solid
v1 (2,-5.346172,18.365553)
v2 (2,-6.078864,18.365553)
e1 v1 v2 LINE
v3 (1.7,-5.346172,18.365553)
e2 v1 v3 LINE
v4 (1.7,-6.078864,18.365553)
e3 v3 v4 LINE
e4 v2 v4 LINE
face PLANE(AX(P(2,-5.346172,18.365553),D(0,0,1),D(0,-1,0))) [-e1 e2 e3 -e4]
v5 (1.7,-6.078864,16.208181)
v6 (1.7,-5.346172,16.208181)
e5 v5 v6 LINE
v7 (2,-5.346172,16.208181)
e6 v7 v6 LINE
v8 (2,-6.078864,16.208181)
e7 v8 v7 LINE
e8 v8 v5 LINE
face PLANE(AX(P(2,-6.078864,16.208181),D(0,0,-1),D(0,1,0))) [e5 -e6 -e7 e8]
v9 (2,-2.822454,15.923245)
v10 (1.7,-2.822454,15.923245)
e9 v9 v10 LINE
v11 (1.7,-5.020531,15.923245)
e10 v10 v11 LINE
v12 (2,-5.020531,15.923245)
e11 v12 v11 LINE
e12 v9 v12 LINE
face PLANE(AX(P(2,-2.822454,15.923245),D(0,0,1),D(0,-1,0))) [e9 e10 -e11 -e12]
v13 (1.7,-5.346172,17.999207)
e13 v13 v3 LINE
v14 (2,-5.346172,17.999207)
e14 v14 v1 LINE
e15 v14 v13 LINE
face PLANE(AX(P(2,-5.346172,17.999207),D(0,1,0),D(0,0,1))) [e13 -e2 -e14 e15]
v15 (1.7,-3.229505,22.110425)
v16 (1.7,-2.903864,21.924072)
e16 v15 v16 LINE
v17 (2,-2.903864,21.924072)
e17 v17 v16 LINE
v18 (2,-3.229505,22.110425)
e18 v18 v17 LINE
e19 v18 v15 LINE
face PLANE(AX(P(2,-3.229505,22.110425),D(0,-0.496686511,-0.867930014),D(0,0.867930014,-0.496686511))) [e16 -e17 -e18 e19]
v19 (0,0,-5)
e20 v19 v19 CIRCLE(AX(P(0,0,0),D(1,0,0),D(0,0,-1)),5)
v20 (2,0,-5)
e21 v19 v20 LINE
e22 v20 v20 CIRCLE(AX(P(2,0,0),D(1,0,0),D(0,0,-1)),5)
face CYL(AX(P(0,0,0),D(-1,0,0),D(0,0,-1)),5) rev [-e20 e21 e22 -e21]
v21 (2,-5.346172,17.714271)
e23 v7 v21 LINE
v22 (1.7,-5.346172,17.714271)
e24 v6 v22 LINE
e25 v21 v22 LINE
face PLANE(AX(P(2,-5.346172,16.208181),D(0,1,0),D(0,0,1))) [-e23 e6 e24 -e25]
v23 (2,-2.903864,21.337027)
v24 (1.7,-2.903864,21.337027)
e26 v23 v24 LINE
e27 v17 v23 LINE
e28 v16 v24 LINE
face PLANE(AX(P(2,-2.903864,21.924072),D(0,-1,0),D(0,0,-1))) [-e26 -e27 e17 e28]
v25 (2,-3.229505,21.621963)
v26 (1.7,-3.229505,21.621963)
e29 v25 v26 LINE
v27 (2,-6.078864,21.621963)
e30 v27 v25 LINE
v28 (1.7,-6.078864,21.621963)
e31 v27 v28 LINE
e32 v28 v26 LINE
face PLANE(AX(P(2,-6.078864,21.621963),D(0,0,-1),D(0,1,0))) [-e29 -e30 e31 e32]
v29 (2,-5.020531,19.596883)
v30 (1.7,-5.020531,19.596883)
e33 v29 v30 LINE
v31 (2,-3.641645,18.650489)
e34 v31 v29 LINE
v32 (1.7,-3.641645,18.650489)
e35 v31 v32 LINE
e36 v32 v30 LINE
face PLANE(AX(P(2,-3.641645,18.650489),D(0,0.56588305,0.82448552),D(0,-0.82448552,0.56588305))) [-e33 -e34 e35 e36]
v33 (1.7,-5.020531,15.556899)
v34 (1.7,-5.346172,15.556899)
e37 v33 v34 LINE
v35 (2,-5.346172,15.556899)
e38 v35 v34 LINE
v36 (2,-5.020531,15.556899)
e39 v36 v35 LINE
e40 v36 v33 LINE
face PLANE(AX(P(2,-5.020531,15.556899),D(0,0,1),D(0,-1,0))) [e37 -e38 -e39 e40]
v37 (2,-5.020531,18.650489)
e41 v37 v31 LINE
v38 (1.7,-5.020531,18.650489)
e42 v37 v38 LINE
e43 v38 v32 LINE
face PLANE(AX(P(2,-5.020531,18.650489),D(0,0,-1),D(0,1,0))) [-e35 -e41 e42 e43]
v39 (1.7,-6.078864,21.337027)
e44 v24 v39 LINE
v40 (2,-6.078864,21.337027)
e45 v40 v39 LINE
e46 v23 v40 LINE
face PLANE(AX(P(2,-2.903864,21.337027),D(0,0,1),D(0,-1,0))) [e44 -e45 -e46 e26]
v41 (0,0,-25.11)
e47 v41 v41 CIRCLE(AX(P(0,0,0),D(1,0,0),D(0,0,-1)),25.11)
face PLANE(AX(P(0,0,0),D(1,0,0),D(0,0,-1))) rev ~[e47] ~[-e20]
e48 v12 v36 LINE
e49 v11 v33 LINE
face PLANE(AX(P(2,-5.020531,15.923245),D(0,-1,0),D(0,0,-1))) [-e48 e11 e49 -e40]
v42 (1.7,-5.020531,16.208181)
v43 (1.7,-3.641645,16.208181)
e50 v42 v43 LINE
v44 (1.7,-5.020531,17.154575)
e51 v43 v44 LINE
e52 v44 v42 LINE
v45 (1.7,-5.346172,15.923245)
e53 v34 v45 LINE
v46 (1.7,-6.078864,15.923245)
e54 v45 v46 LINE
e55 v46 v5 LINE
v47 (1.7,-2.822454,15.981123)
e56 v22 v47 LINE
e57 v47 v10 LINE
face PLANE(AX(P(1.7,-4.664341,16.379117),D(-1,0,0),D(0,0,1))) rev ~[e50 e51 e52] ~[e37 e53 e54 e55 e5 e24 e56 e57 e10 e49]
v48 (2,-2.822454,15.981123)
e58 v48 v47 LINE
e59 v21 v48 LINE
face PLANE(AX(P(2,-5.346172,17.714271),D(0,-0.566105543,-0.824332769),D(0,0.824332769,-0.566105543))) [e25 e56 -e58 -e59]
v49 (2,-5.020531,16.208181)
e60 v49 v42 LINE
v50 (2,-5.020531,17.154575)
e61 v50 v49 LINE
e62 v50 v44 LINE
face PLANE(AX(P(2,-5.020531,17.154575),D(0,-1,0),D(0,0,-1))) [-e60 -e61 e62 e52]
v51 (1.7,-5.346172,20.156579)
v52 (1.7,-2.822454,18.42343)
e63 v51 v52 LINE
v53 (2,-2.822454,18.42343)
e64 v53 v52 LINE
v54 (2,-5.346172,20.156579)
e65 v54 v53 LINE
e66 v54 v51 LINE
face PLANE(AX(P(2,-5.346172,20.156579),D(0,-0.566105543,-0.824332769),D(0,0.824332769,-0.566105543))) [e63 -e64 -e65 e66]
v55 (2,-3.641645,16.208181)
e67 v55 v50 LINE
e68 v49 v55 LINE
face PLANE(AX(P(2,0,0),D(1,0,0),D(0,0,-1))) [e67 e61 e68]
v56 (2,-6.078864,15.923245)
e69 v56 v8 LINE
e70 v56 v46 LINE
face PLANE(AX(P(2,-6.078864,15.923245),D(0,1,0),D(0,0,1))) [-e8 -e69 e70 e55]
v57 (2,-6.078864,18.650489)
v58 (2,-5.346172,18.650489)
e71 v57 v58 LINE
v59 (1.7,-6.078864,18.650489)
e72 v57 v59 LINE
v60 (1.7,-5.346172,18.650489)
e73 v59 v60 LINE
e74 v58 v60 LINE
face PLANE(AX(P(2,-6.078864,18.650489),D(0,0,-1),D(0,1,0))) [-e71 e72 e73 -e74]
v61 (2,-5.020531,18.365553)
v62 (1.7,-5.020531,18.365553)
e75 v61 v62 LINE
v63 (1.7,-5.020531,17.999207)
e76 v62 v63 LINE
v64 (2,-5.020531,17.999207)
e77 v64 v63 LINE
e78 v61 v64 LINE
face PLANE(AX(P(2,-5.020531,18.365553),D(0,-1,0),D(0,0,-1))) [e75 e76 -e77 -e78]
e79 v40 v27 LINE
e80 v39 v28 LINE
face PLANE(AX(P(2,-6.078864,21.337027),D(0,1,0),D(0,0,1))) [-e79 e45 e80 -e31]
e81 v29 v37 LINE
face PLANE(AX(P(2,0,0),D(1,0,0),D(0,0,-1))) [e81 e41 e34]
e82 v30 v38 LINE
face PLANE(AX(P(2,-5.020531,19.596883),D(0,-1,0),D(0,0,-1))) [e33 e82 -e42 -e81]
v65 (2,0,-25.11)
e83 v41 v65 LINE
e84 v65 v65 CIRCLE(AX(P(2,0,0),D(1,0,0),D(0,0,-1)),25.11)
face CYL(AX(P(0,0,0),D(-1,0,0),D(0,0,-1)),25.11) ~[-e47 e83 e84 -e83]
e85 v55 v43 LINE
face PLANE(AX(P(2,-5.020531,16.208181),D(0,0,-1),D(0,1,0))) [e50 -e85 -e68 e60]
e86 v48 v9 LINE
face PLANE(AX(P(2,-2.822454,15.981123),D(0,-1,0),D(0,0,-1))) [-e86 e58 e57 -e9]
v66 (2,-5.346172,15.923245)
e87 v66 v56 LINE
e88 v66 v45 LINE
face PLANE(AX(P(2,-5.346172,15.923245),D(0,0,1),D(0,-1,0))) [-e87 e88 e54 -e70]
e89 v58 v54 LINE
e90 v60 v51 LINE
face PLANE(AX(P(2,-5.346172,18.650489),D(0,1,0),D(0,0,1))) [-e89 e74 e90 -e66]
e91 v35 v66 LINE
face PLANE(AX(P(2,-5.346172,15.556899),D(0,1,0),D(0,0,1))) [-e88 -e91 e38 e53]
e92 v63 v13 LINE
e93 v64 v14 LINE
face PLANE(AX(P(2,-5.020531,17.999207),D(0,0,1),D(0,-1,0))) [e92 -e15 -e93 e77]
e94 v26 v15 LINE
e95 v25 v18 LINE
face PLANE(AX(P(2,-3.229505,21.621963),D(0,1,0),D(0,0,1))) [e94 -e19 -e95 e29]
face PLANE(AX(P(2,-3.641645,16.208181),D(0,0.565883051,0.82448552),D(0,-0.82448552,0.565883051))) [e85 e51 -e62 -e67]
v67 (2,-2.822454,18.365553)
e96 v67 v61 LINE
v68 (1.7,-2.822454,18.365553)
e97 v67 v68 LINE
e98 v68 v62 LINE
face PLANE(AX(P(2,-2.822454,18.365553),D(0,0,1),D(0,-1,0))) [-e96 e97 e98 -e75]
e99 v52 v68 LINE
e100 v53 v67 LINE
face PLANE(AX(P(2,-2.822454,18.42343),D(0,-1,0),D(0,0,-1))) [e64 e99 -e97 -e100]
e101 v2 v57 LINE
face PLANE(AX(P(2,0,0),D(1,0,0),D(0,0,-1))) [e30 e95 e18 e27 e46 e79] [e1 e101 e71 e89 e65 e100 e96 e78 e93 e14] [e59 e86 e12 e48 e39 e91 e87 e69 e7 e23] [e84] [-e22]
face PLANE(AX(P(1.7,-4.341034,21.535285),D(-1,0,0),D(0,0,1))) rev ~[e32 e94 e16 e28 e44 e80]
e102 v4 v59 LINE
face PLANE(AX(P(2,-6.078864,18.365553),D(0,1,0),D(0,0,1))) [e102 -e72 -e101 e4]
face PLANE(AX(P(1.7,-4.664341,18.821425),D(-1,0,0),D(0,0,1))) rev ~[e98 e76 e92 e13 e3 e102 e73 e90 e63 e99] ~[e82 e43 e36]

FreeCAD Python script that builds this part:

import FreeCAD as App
import Part
import Sketcher

V = App.Vector

doc = App.newDocument("Part")
body = doc.addObject("PartDesign::Body", "Body")

# Sketch on YZ plane
sketch1 = body.newObject("Sketcher::SketchObject", "Sketch")
sketch1.AttachmentSupport = (doc.getObject("YZ_Plane"), [""])
sketch1.MapMode = "FlatFace"
sketch1.addGeometry(Part.Circle(V(0, 0, 0), V(0, 0, 1), 25), False)
sketch1.addGeometry(Part.Circle(V(0, 0, 0), V(0, 0, 1), 5), False)
sketch1.addConstraint(Sketcher.Constraint("Coincident", 0, 3, -1, 1))
sketch1.addConstraint(Sketcher.Constraint("Coincident", 1, 3, -1, 1))
sketch1.addConstraint(Sketcher.Constraint("Diameter", 1, 10.0))
sketch1.addConstraint(Sketcher.Constraint("Diameter", 0, 50.22))
pad1 = body.newObject("PartDesign::Pad", "Pad")
pad1.Profile = sketch1
pad1.Length = 2

# Sketch on YZ plane
sketch2 = body.newObject("Sketcher::SketchObject", "Sketch001")
sketch2.AttachmentSupport = (doc.getObject("YZ_Plane"), [""])
sketch2.MapMode = "FlatFace"
sketch2.AttachmentOffset = App.Placement(V(0, 0, 2), App.Rotation())
sketch2.addGeometry(Part.LineSegment(V(-2.9, 21.34, 0), V(-2.9, 21.92, 0)), False)
sketch2.addGeometry(Part.LineSegment(V(-2.9, 21.92, 0), V(-3.23, 22.11, 0)), False)
sketch2.addGeometry(Part.LineSegment(V(-3.23, 22.11, 0), V(-3.23, 21.62, 0)), False)
sketch2.addGeometry(Part.LineSegment(V(-3.23, 21.62, 0), V(-6.08, 21.62, 0)), False)
sketch2.addGeometry(Part.LineSegment(V(-6.08, 21.62, 0), V(-6.08, 21.34, 0)), False)
sketch2.addGeometry(Part.LineSegment(V(-6.08, 21.34, 0), V(-2.9, 21.34, 0)), False)
sketch2.addGeometry(Part.LineSegment(V(-2.82, 18.37, 0), V(-2.82, 18.42, 0)), False)
sketch2.addGeometry(Part.LineSegment(V(-2.82, 18.42, 0), V(-5.35, 20.16, 0)), False)
sketch2.addGeometry(Part.LineSegment(V(-5.35, 20.16, 0), V(-5.35, 18.65, 0)), False)
sketch2.addGeometry(Part.LineSegment(V(-5.35, 18.65, 0), V(-6.08, 18.65, 0)), False)
sketch2.addGeometry(Part.LineSegment(V(-6.08, 18.65, 0), V(-6.08, 18.37, 0)), False)
sketch2.addGeometry(Part.LineSegment(V(-6.08, 18.37, 0), V(-5.35, 18.37, 0)), False)
sketch2.addGeometry(Part.LineSegment(V(-5.35, 18.37, 0), V(-5.35, 18, 0)), False)
sketch2.addGeometry(Part.LineSegment(V(-5.35, 18, 0), V(-5.02, 18, 0)), False)
sketch2.addGeometry(Part.LineSegment(V(-5.02, 18, 0), V(-5.02, 18.37, 0)), False)
sketch2.addGeometry(Part.LineSegment(V(-5.02, 18.37, 0), V(-2.82, 18.37, 0)), False)
sketch2.addGeometry(Part.LineSegment(V(-5.02, 18.65, 0), V(-5.02, 19.6, 0)), False)
sketch2.addGeometry(Part.LineSegment(V(-5.02, 19.6, 0), V(-3.64, 18.65, 0)), False)
sketch2.addGeometry(Part.LineSegment(V(-3.64, 18.65, 0), V(-5.02, 18.65, 0)), False)
sketch2.addGeometry(Part.LineSegment(V(-2.82, 15.92, 0), V(-2.82, 15.98, 0)), False)
sketch2.addGeometry(Part.LineSegment(V(-2.82, 15.98, 0), V(-5.35, 17.71, 0)), False)
sketch2.addGeometry(Part.LineSegment(V(-5.35, 17.71, 0), V(-5.35, 16.21, 0)), False)
sketch2.addGeometry(Part.LineSegment(V(-5.35, 16.21, 0), V(-6.08, 16.21, 0)), False)
sketch2.addGeometry(Part.LineSegment(V(-6.08, 16.21, 0), V(-6.08, 15.92, 0)), False)
sketch2.addGeometry(Part.LineSegment(V(-6.08, 15.92, 0), V(-5.35, 15.92, 0)), False)
sketch2.addGeometry(Part.LineSegment(V(-5.35, 15.92, 0), V(-5.35, 15.56, 0)), False)
sketch2.addGeometry(Part.LineSegment(V(-5.35, 15.56, 0), V(-5.02, 15.56, 0)), False)
sketch2.addGeometry(Part.LineSegment(V(-5.02, 15.56, 0), V(-5.02, 15.92, 0)), False)
sketch2.addGeometry(Part.LineSegment(V(-5.02, 15.92, 0), V(-2.82, 15.92, 0)), False)
sketch2.addGeometry(Part.LineSegment(V(-5.02, 16.21, 0), V(-5.02, 17.15, 0)), False)
sketch2.addGeometry(Part.LineSegment(V(-5.02, 17.15, 0), V(-3.64, 16.21, 0)), False)
sketch2.addGeometry(Part.LineSegment(V(-3.64, 16.21, 0), V(-5.02, 16.21, 0)), False)
sketch2.addConstraint(Sketcher.Constraint("Coincident", 0, 2, 1, 1))
sketch2.addConstraint(Sketcher.Constraint("Coincident", 1, 2, 2, 1))
sketch2.addConstraint(Sketcher.Constraint("Coincident", 2, 2, 3, 1))
sketch2.addConstraint(Sketcher.Constraint("Coincident", 3, 2, 4, 1))
sketch2.addConstraint(Sketcher.Constraint("Coincident", 4, 2, 5, 1))
sketch2.addConstraint(Sketcher.Constraint("Coincident", 5, 2, 0, 1))
sketch2.addConstraint(Sketcher.Constraint("Coincident", 6, 2, 7, 1))
sketch2.addConstraint(Sketcher.Constraint("Coincident", 7, 2, 8, 1))
sketch2.addConstraint(Sketcher.Constraint("Coincident", 8, 2, 9, 1))
sketch2.addConstraint(Sketcher.Constraint("Coincident", 9, 2, 10, 1))
sketch2.addConstraint(Sketcher.Constraint("Coincident", 10, 2, 11, 1))
sketch2.addConstraint(Sketcher.Constraint("Coincident", 11, 2, 12, 1))
sketch2.addConstraint(Sketcher.Constraint("Coincident", 12, 2, 13, 1))
sketch2.addConstraint(Sketcher.Constraint("Coincident", 13, 2, 14, 1))
sketch2.addConstraint(Sketcher.Constraint("Coincident", 14, 2, 15, 1))
sketch2.addConstraint(Sketcher.Constraint("Coincident", 15, 2, 6, 1))
sketch2.addConstraint(Sketcher.Constraint("Coincident", 16, 2, 17, 1))
sketch2.addConstraint(Sketcher.Constraint("Coincident", 17, 2, 18, 1))
sketch2.addConstraint(Sketcher.Constraint("Coincident", 18, 2, 16, 1))
sketch2.addConstraint(Sketcher.Constraint("Coincident", 19, 2, 20, 1))
sketch2.addConstraint(Sketcher.Constraint("Coincident", 20, 2, 21, 1))
sketch2.addConstraint(Sketcher.Constraint("Coincident", 21, 2, 22, 1))
sketch2.addConstraint(Sketcher.Constraint("Coincident", 22, 2, 23, 1))
sketch2.addConstraint(Sketcher.Constraint("Coincident", 23, 2, 24, 1))
sketch2.addConstraint(Sketcher.Constraint("Coincident", 24, 2, 25, 1))
sketch2.addConstraint(Sketcher.Constraint("Coincident", 25, 2, 26, 1))
sketch2.addConstraint(Sketcher.Constraint("Coincident", 26, 2, 27, 1))
sketch2.addConstraint(Sketcher.Constraint("Coincident", 27, 2, 28, 1))
sketch2.addConstraint(Sketcher.Constraint("Coincident", 28, 2, 19, 1))
sketch2.addConstraint(Sketcher.Constraint("Coincident", 29, 2, 30, 1))
sketch2.addConstraint(Sketcher.Constraint("Coincident", 30, 2, 31, 1))
sketch2.addConstraint(Sketcher.Constraint("Coincident", 31, 2, 29, 1))
sketch2.addConstraint(Sketcher.Constraint("Vertical", 0))
sketch2.addConstraint(Sketcher.Constraint("Vertical", 2))
sketch2.addConstraint(Sketcher.Constraint("Horizontal", 3))
sketch2.addConstraint(Sketcher.Constraint("Vertical", 4))
sketch2.addConstraint(Sketcher.Constraint("Horizontal", 5))
sketch2.addConstraint(Sketcher.Constraint("Vertical", 6))
sketch2.addConstraint(Sketcher.Constraint("Vertical", 8))
sketch2.addConstraint(Sketcher.Constraint("Horizontal", 9))
sketch2.addConstraint(Sketcher.Constraint("Vertical", 10))
sketch2.addConstraint(Sketcher.Constraint("Horizontal", 11))
sketch2.addConstraint(Sketcher.Constraint("Vertical", 12))
sketch2.addConstraint(Sketcher.Constraint("Horizontal", 13))
sketch2.addConstraint(Sketcher.Constraint("Vertical", 14))
sketch2.addConstraint(Sketcher.Constraint("Horizontal", 15))
sketch2.addConstraint(Sketcher.Constraint("Vertical", 16))
sketch2.addConstraint(Sketcher.Constraint("Horizontal", 18))
sketch2.addConstraint(Sketcher.Constraint("Vertical", 19))
sketch2.addConstraint(Sketcher.Constraint("Vertical", 21))
sketch2.addConstraint(Sketcher.Constraint("Horizontal", 22))
sketch2.addConstraint(Sketcher.Constraint("Vertical", 23))
sketch2.addConstraint(Sketcher.Constraint("Horizontal", 24))
sketch2.addConstraint(Sketcher.Constraint("Vertical", 25))
sketch2.addConstraint(Sketcher.Constraint("Horizontal", 26))
sketch2.addConstraint(Sketcher.Constraint("Vertical", 27))
sketch2.addConstraint(Sketcher.Constraint("Horizontal", 28))
sketch2.addConstraint(Sketcher.Constraint("Vertical", 29))
sketch2.addConstraint(Sketcher.Constraint("Horizontal", 31))
sketch2.addConstraint(Sketcher.Constraint("Parallel", 7, 20))
sketch2.addConstraint(Sketcher.Constraint("Parallel", 17, 30))
sketch2.addConstraint(Sketcher.Constraint("Horizontal", 11, 2, 14, 2))
sketch2.addConstraint(Sketcher.Constraint("Horizontal", 9, 2, 17, 2))
sketch2.addConstraint(Sketcher.Constraint("Horizontal", 24, 2, 27, 2))
sketch2.addConstraint(Sketcher.Constraint("Horizontal", 22, 2, 30, 2))
sketch2.addConstraint(Sketcher.Constraint("Vertical", 4, 2, 9, 2))
sketch2.addConstraint(Sketcher.Constraint("Vertical", 8, 2, 11, 2))
sketch2.addConstraint(Sketcher.Constraint("Vertical", 14, 2, 16, 2))
sketch2.addConstraint(Sketcher.Constraint("Vertical", 15, 2, 19, 2))
sketch2.addConstraint(Sketcher.Constraint("Vertical", 12, 2, 20, 2))
sketch2.addConstraint(Sketcher.Constraint("Vertical", 10, 2, 22, 2))
sketch2.addConstraint(Sketcher.Constraint("Vertical", 21, 2, 24, 2))
sketch2.addConstraint(Sketcher.Constraint("Vertical", 18, 2, 26, 2))
sketch2.addConstraint(Sketcher.Constraint("Vertical", 27, 2, 29, 2))
sketch2.addConstraint(Sketcher.Constraint("Vertical", 17, 2, 30, 2))
sketch2.addConstraint(Sketcher.Constraint("Equal", 4, 10))
sketch2.addConstraint(Sketcher.Constraint("Equal", 6, 19))
sketch2.addConstraint(Sketcher.Constraint("Equal", 8, 21))
sketch2.addConstraint(Sketcher.Constraint("Equal", 14, 25))
sketch2.addConstraint(Sketcher.Constraint("DistanceX", 5, 1, 5, 2, 3.175))
sketch2.addConstraint(Sketcher.Constraint("DistanceX", 3, 2, 3, 1, 2.849359))
sketch2.addConstraint(Sketcher.Constraint("DistanceX", 13, 1, 13, 2, 0.325641))
sketch2.addConstraint(Sketcher.Constraint("DistanceY", 2, 2, 2, 1, 0.488462))
sketch2.addConstraint(Sketcher.Constraint("DistanceY", 8, 2, 8, 1, 1.50609))
sketch2.addConstraint(Sketcher.Constraint("DistanceY", -1, 1, 25, 2, 15.556899))
sketch2.addConstraint(Sketcher.Constraint("Distance", 7, 3.061528))
sketch2.addConstraint(Sketcher.Constraint("Distance", 17, 1.67242))
sketch2.addConstraint(Sketcher.Constraint("DistanceX", 9, 2, 9, 1, 0.732692))
sketch2.addConstraint(Sketcher.Constraint("DistanceX", 15, 1, 15, 2, 2.198077))
sketch2.addConstraint(Sketcher.Constraint("DistanceX", 18, 2, 18, 1, 1.378886))
sketch2.addConstraint(Sketcher.Constraint("DistanceY", 0, 1, 0, 2, 0.587044))
sketch2.addConstraint(Sketcher.Constraint("DistanceY", 4, 2, 4, 1, 0.284936))
sketch2.addConstraint(Sketcher.Constraint("DistanceY", 12, 2, 12, 1, 0.366346))
sketch2.addConstraint(Sketcher.Constraint("DistanceY", -1, 1, 0, 2, 21.924072))
sketch2.addConstraint(Sketcher.Constraint("DistanceY", -1, 1, 6, 2, 18.42343))
sketch2.addConstraint(Sketcher.Constraint("DistanceX", 13, 2, -1, 1, 5.020531))
pocket1 = body.newObject("PartDesign::Pocket", "Pocket")
pocket1.Profile = sketch2
pocket1.Length = 0.3

doc.recompute()
